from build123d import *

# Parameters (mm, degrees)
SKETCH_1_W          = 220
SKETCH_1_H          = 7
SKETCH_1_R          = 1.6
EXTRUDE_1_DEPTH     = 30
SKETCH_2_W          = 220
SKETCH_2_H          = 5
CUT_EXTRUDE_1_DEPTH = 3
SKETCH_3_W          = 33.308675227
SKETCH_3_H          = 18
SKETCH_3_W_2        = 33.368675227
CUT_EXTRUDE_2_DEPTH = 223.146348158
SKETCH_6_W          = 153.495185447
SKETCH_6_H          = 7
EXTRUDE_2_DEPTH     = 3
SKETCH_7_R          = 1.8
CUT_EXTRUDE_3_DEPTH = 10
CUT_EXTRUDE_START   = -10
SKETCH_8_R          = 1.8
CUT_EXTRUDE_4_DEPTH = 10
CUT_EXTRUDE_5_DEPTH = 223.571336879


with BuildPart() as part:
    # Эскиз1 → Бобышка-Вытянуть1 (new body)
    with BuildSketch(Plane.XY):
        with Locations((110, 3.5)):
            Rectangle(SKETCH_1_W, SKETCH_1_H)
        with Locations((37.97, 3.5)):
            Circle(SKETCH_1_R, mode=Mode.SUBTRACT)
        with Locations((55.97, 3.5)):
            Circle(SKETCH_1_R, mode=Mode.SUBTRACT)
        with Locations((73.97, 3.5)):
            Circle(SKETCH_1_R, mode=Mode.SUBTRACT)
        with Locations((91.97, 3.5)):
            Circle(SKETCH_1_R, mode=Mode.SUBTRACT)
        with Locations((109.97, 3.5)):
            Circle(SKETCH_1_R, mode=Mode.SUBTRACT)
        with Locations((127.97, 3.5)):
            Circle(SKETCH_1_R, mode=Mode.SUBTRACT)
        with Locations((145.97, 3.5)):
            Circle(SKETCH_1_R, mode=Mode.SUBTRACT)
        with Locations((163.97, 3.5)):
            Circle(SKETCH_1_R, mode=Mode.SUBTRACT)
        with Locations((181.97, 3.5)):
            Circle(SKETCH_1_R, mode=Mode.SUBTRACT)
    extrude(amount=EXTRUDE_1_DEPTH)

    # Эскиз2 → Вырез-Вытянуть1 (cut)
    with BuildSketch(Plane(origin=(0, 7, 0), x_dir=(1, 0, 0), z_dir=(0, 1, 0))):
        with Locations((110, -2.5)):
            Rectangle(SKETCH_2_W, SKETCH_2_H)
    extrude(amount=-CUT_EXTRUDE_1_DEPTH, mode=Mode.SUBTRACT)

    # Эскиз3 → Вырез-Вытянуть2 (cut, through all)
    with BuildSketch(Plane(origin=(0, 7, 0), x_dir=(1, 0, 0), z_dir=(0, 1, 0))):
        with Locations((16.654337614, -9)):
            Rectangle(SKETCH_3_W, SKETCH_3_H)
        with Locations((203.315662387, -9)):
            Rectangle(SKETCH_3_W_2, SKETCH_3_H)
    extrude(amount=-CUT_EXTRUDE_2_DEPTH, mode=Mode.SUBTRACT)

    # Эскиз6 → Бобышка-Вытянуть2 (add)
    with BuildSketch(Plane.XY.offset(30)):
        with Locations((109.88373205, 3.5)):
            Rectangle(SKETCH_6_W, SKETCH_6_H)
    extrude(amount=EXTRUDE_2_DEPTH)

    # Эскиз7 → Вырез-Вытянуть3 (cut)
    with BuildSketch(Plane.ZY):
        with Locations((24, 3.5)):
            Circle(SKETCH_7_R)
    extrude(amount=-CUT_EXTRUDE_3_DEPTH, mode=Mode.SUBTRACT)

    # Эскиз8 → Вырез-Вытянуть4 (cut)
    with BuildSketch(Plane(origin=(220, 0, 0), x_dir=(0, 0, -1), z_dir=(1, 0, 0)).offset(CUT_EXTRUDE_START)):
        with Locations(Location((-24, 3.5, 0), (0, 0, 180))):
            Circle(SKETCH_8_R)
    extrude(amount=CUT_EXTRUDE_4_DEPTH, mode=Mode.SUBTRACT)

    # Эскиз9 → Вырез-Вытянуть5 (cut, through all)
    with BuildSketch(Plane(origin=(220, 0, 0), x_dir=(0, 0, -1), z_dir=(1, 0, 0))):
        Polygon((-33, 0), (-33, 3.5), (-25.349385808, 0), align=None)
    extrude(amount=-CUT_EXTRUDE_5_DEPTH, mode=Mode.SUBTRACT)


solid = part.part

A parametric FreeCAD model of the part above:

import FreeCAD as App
import Part
import Sketcher
from FreeCAD import Vector

doc = App.newDocument("Part")
body = doc.addObject("PartDesign::Body", "Body")

sketch1 = doc.addObject("Sketcher::SketchObject", "Sketch")
body.addObject(sketch1)
sketch1.AttachmentSupport = (doc.XY_Plane, [""])
sketch1.MapMode = "FlatFace"
sketch1.addGeometry([
    Part.LineSegment(Vector(0, 7, 0), Vector(0, 0, 0)),
    Part.LineSegment(Vector(0, 0, 0), Vector(220, 0, 0)),
    Part.LineSegment(Vector(220, 0, 0), Vector(220, 7, 0)),
    Part.LineSegment(Vector(220, 7, 0), Vector(0, 7, 0)),
    Part.Circle(Vector(38, 3.5, 0), Vector(0, 0, 1), 1.6),
    Part.Circle(Vector(56, 3.5, 0), Vector(0, 0, 1), 1.6),
    Part.Circle(Vector(74, 3.5, 0), Vector(0, 0, 1), 1.6),
    Part.Circle(Vector(92, 3.5, 0), Vector(0, 0, 1), 1.6),
    Part.Circle(Vector(110, 3.5, 0), Vector(0, 0, 1), 1.6),
    Part.Circle(Vector(128, 3.5, 0), Vector(0, 0, 1), 1.6),
    Part.Circle(Vector(146, 3.5, 0), Vector(0, 0, 1), 1.6),
    Part.Circle(Vector(164, 3.5, 0), Vector(0, 0, 1), 1.6),
    Part.Circle(Vector(182, 3.5, 0), Vector(0, 0, 1), 1.6),
], False)
sketch1.addConstraint([
    Sketcher.Constraint("Coincident", 0, 2, 1, 1),
    Sketcher.Constraint("Coincident", 1, 2, 2, 1),
    Sketcher.Constraint("Coincident", 2, 2, 3, 1),
    Sketcher.Constraint("Coincident", 3, 2, 0, 1),
    Sketcher.Constraint("Vertical", 0),
    Sketcher.Constraint("Horizontal", 1),
    Sketcher.Constraint("Vertical", 2),
    Sketcher.Constraint("Horizontal", 3),
    Sketcher.Constraint("Coincident", 0, 2, -1, 1),
    Sketcher.Constraint("Equal", 4, 5),
    Sketcher.Constraint("Equal", 5, 6),
    Sketcher.Constraint("Equal", 6, 7),
    Sketcher.Constraint("Equal", 7, 8),
    Sketcher.Constraint("Equal", 8, 9),
    Sketcher.Constraint("Equal", 9, 10),
    Sketcher.Constraint("Equal", 10, 11),
    Sketcher.Constraint("Equal", 11, 12),
    Sketcher.Constraint("Horizontal", 4, 3, 5, 3),
    Sketcher.Constraint("Horizontal", 5, 3, 6, 3),
    Sketcher.Constraint("Horizontal", 6, 3, 7, 3),
    Sketcher.Constraint("Horizontal", 7, 3, 8, 3),
    Sketcher.Constraint("Horizontal", 8, 3, 9, 3),
    Sketcher.Constraint("Horizontal", 9, 3, 10, 3),
    Sketcher.Constraint("Horizontal", 10, 3, 11, 3),
    Sketcher.Constraint("Horizontal", 11, 3, 12, 3),
    Sketcher.Constraint("Diameter", 4, 3.2),
    Sketcher.Constraint("DistanceX", 1, 1, 1, 2, 220.0),
    Sketcher.Constraint("DistanceY", 0, 2, 0, 1, 7.0),
    Sketcher.Constraint("DistanceX", 4, 3, 5, 3, 18.0),
    Sketcher.Constraint("DistanceX", 5, 3, 6, 3, 18.0),
    Sketcher.Constraint("DistanceX", 6, 3, 7, 3, 18.0),
    Sketcher.Constraint("DistanceX", 7, 3, 8, 3, 18.0),
    Sketcher.Constraint("DistanceX", 8, 3, 9, 3, 18.0),
    Sketcher.Constraint("DistanceX", 9, 3, 10, 3, 18.0),
    Sketcher.Constraint("DistanceX", 10, 3, 11, 3, 18.0),
    Sketcher.Constraint("DistanceX", 11, 3, 12, 3, 18.0),
    Sketcher.Constraint("DistanceY", -1, 1, 4, 3, 3.5),
    Sketcher.Constraint("DistanceX", -1, 1, 4, 3, 37.97),
])
pad1 = doc.addObject("PartDesign::Pad", "Pad")
body.addObject(pad1)
pad1.Profile = sketch1
pad1.Length = 30

sketch2 = doc.addObject("Sketcher::SketchObject", "Sketch001")
body.addObject(sketch2)
sketch2.AttachmentSupport = (doc.XZ_Plane, [""])
sketch2.MapMode = "FlatFace"
sketch2.AttachmentOffset = App.Placement(Vector(0, 0, -7), App.Rotation())
sketch2.addGeometry([
    Part.LineSegment(Vector(0, 0, 0), Vector(0, 5, 0)),
    Part.LineSegment(Vector(0, 5, 0), Vector(220, 5, 0)),
    Part.LineSegment(Vector(220, 5, 0), Vector(220, 0, 0)),
    Part.LineSegment(Vector(220, 0, 0), Vector(0, 0, 0)),
], False)
sketch2.addConstraint([
    Sketcher.Constraint("Coincident", 0, 2, 1, 1),
    Sketcher.Constraint("Coincident", 1, 2, 2, 1),
    Sketcher.Constraint("Coincident", 2, 2, 3, 1),
    Sketcher.Constraint("Coincident", 3, 2, 0, 1),
    Sketcher.Constraint("Vertical", 0),
    Sketcher.Constraint("Horizontal", 1),
    Sketcher.Constraint("Vertical", 2),
    Sketcher.Constraint("Horizontal", 3),
    Sketcher.Constraint("Coincident", 3, 2, -1, 1),
    Sketcher.Constraint("DistanceX", 1, 1, 1, 2, 220.0),
    Sketcher.Constraint("DistanceY", 0, 1, 0, 2, 5.0),
])
pocket1 = doc.addObject("PartDesign::Pocket", "Pocket")
body.addObject(pocket1)
pocket1.Profile = sketch2
pocket1.Length = 3
pocket1.Reversed = True

sketch3 = doc.addObject("Sketcher::SketchObject", "Sketch002")
body.addObject(sketch3)
sketch3.AttachmentSupport = (doc.XZ_Plane, [""])
sketch3.MapMode = "FlatFace"
sketch3.AttachmentOffset = App.Placement(Vector(0, 0, -7), App.Rotation())
sketch3.addGeometry([
    Part.LineSegment(Vector(0, 0, 0), Vector(0, 18, 0)),
    Part.LineSegment(Vector(0, 18, 0), Vector(33, 18, 0)),
    Part.LineSegment(Vector(33, 18, 0), Vector(33, 0, 0)),
    Part.LineSegment(Vector(33, 0, 0), Vector(0, 0, 0)),
    Part.LineSegment(Vector(187, 0, 0), Vector(187, 18, 0)),
    Part.LineSegment(Vector(187, 18, 0), Vector(220, 18, 0)),
    Part.LineSegment(Vector(220, 18, 0), Vector(220, 0, 0)),
    Part.LineSegment(Vector(220, 0, 0), Vector(187, 0, 0)),
], False)
sketch3.addConstraint([
    Sketcher.Constraint("Coincident", 0, 2, 1, 1),
    Sketcher.Constraint("Coincident", 1, 2, 2, 1),
    Sketcher.Constraint("Coincident", 2, 2, 3, 1),
    Sketcher.Constraint("Coincident", 3, 2, 0, 1),
    Sketcher.Constraint("Coincident", 4, 2, 5, 1),
    Sketcher.Constraint("Coincident", 5, 2, 6, 1),
    Sketcher.Constraint("Coincident", 6, 2, 7, 1),
    Sketcher.Constraint("Coincident", 7, 2, 4, 1),
    Sketcher.Constraint("Vertical", 0),
    Sketcher.Constraint("Horizontal", 1),
    Sketcher.Constraint("Vertical", 2),
    Sketcher.Constraint("Horizontal", 3),
    Sketcher.Constraint("Vertical", 4),
    Sketcher.Constraint("Horizontal", 5),
    Sketcher.Constraint("Vertical", 6),
    Sketcher.Constraint("Horizontal", 7),
    Sketcher.Constraint("Coincident", 3, 2, -1, 1),
    Sketcher.Constraint("PointOnObject", 6, 2, -1),
    Sketcher.Constraint("Horizontal", 1, 2, 4, 2),
    Sketcher.Constraint("DistanceY", 0, 1, 0, 2, 18.0),
    Sketcher.Constraint("DistanceX", -1, 1, 5, 2, 220.0),
    Sketcher.Constraint("DistanceX", 1, 1, 1, 2, 33.308675),
    Sketcher.Constraint("DistanceX", 5, 1, 5, 2, 33.368675),
])
pocket2 = doc.addObject("PartDesign::Pocket", "Pocket001")
body.addObject(pocket2)
pocket2.Profile = sketch3
pocket2.Type = "ThroughAll"
pocket2.Reversed = True

sketch4 = doc.addObject("Sketcher::SketchObject", "Sketch003")
body.addObject(sketch4)
sketch4.AttachmentSupport = (doc.XY_Plane, [""])
sketch4.MapMode = "FlatFace"
sketch4.AttachmentOffset = App.Placement(Vector(0, 0, 30), App.Rotation())
sketch4.addGeometry([
    Part.LineSegment(Vector(33, 7, 0), Vector(33, 0, 0)),
    Part.LineSegment(Vector(33, 0, 0), Vector(187, 0, 0)),
    Part.LineSegment(Vector(187, 0, 0), Vector(187, 7, 0)),
    Part.LineSegment(Vector(187, 7, 0), Vector(33, 7, 0)),
], False)
sketch4.addConstraint([
    Sketcher.Constraint("Coincident", 0, 2, 1, 1),
    Sketcher.Constraint("Coincident", 1, 2, 2, 1),
    Sketcher.Constraint("Coincident", 2, 2, 3, 1),
    Sketcher.Constraint("Coincident", 3, 2, 0, 1),
    Sketcher.Constraint("Vertical", 0),
    Sketcher.Constraint("Horizontal", 1),
    Sketcher.Constraint("Vertical", 2),
    Sketcher.Constraint("Horizontal", 3),
    Sketcher.Constraint("PointOnObject", 0, 2, -1),
    Sketcher.Constraint("DistanceY", 0, 2, 0, 1, 7.0),
    Sketcher.Constraint("DistanceX", 1, 1, 1, 2, 153.495185),
    Sketcher.Constraint("DistanceX", -1, 1, 0, 2, 33.136139),
])
pad2 = doc.addObject("PartDesign::Pad", "Pad001")
body.addObject(pad2)
pad2.Profile = sketch4
pad2.Length = 3

sketch5 = doc.addObject("Sketcher::SketchObject", "Sketch004")
body.addObject(sketch5)
sketch5.AttachmentSupport = (doc.YZ_Plane, [""])
sketch5.MapMode = "FlatFace"
sketch5.addGeometry(Part.Circle(Vector(3.5, 24, 0), Vector(0, 0, 1), 1.8), False)
sketch5.addConstraint([
    Sketcher.Constraint("Diameter", 0, 3.6),
    Sketcher.Constraint("DistanceY", -1, 1, 0, 3, 24.0),
    Sketcher.Constraint("DistanceX", -1, 1, 0, 3, 3.5),
])
pocket3 = doc.addObject("PartDesign::Pocket", "Pocket002")
body.addObject(pocket3)
pocket3.Profile = sketch5
pocket3.Length = 10
pocket3.Reversed = True

sketch6 = doc.addObject("Sketcher::SketchObject", "Sketch005")
body.addObject(sketch6)
sketch6.AttachmentSupport = (doc.YZ_Plane, [""])
sketch6.MapMode = "FlatFace"
sketch6.AttachmentOffset = App.Placement(Vector(0, 0, 210), App.Rotation())
sketch6.addGeometry(Part.Circle(Vector(3.5, 24, 0), Vector(0, 0, 1), 1.8), False)
sketch6.addConstraint([
    Sketcher.Constraint("Diameter", 0, 3.6),
    Sketcher.Constraint("DistanceY", -1, 1, 0, 3, 24.0),
    Sketcher.Constraint("DistanceX", -1, 1, 0, 3, 3.5),
])
pocket4 = doc.addObject("PartDesign::Pocket", "Pocket003")
body.addObject(pocket4)
pocket4.Profile = sketch6
pocket4.Length = 10
pocket4.Reversed = True

sketch7 = doc.addObject("Sketcher::SketchObject", "Sketch006")
body.addObject(sketch7)
sketch7.AttachmentSupport = (doc.YZ_Plane, [""])
sketch7.MapMode = "FlatFace"
sketch7.AttachmentOffset = App.Placement(Vector(0, 0, 220), App.Rotation())
sketch7.addGeometry([
    Part.LineSegment(Vector(3.5, 33, 0), Vector(0, 33, 0)),
    Part.LineSegment(Vector(0, 33, 0), Vector(0, 25.3, 0)),
    Part.LineSegment(Vector(0, 25.3, 0), Vector(3.5, 33, 0)),
], False)
sketch7.addConstraint([
    Sketcher.Constraint("Coincident", 0, 2, 1, 1),
    Sketcher.Constraint("Coincident", 1, 2, 2, 1),
    Sketcher.Constraint("Coincident", 2, 2, 0, 1),
    Sketcher.Constraint("Horizontal", 0),
    Sketcher.Constraint("Vertical", 1),
    Sketcher.Constraint("PointOnObject", 0, 2, -2),
    Sketcher.Constraint("DistanceX", 0, 2, 0, 1, 3.5),
    Sketcher.Constraint("DistanceY", -1, 1, 0, 2, 33.0),
    Sketcher.Constraint("DistanceY", 1, 2, 1, 1, 7.650614),
])
pocket5 = doc.addObject("PartDesign::Pocket", "Pocket004")
body.addObject(pocket5)
pocket5.Profile = sketch7
pocket5.Type = "ThroughAll"

doc.recompute()
